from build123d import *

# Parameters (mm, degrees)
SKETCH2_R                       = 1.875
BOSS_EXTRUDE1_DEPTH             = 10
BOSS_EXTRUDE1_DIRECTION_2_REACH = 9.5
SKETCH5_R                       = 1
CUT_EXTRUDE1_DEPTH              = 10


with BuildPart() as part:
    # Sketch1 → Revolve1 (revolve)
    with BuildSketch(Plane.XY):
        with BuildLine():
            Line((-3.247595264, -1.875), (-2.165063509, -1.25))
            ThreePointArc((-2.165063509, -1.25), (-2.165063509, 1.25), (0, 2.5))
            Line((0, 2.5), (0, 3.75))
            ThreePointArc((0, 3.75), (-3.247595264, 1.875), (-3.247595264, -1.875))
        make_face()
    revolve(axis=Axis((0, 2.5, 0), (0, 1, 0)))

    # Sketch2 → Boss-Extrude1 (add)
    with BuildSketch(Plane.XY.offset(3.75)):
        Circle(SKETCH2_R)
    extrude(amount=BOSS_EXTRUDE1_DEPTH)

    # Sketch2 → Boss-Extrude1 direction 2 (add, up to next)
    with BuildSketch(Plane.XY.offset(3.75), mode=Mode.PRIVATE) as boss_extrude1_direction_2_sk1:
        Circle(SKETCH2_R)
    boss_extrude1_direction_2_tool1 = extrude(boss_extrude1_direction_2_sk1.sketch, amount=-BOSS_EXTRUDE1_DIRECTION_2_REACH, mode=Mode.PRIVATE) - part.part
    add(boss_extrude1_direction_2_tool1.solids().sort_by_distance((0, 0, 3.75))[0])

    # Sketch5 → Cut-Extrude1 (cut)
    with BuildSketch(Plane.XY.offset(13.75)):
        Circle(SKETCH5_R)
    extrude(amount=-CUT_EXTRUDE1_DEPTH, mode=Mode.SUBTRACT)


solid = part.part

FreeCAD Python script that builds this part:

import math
import FreeCAD as App
import Part
import Sketcher
from FreeCAD import Vector
Q = App.Units.Quantity

doc = App.newDocument("Part")
params = doc.addObject("Spreadsheet::Sheet", "Params")
for row, (alias, value) in enumerate([
    ("sketch1_radius", "2.5 mm"),
    ("sketch1_radius2", "3.75 mm"),
    ("revolution_angle", "360 deg"),
    ("sketch2_diameter", "3.75 mm"),
    ("pad1_length", "10 mm"),
    ("sketch3_diameter", "3.75 mm"),
    ("pad2_length", "0.502405 mm"),
    ("sketch4_diameter", "2 mm"),
    ("pocket1_length", "10 mm"),
], start=1):
    params.set(f"A{row}", alias)
    params.set(f"B{row}", "=" + value)
    params.setAlias(f"B{row}", alias)

body = doc.addObject("PartDesign::Body", "Body")
body.AllowCompound = True

# Sketch on XY plane
sketch1 = body.newObject("Sketcher::SketchObject", "Sketch")
sketch1.AttachmentSupport = (doc.getObject("XY_Plane"), [""])
sketch1.MapMode = "FlatFace"
sketch1.addGeometry(Part.LineSegment(Vector(-3.2, -1.9, 0), Vector(-2.2, -1.2, 0)), False)
sketch1.addGeometry(Part.ArcOfCircle(Part.Circle(Vector(0, 0, 0), Vector(0, 0, 1), 2.5), math.radians(90), math.radians(210)), False)
sketch1.addGeometry(Part.LineSegment(Vector(0, 2.5, 0), Vector(0, 3.8, 0)), False)
sketch1.addGeometry(Part.ArcOfCircle(Part.Circle(Vector(0, 0, 0), Vector(0, 0, 1), 3.8), math.radians(90), math.radians(210)), False)
sketch1.addConstraint(Sketcher.Constraint("Coincident", 0, 2, 1, 2))
sketch1.addConstraint(Sketcher.Constraint("Coincident", 1, 1, 2, 1))
sketch1.addConstraint(Sketcher.Constraint("Coincident", 2, 2, 3, 1))
sketch1.addConstraint(Sketcher.Constraint("Coincident", 3, 2, 0, 1))
sketch1.addConstraint(Sketcher.Constraint("Vertical", 2))
sketch1.addConstraint(Sketcher.Constraint("Coincident", 1, 3, -1, 1))
sketch1.addConstraint(Sketcher.Constraint("Coincident", 3, 3, -1, 1))
sketch1.addConstraint(Sketcher.Constraint("PointOnObject", 1, 1, -2))
sketch1.addConstraint(Sketcher.Constraint("Radius", 1, 2.5))
sketch1.addConstraint(Sketcher.Constraint("Angle", 0, Q("30 deg")))
sketch1.addConstraint(Sketcher.Constraint("Radius", 3, 3.75))
sketch1.addConstraint(Sketcher.Constraint("DistanceY", 0, 2, 2, 2, 5.0))
sketch1.setExpression("Constraints[8]", "Params.sketch1_radius")
sketch1.setExpression("Constraints[10]", "Params.sketch1_radius2")
revolution = body.newObject("PartDesign::Revolution", "Revolution")
revolution.Profile = sketch1
revolution.ReferenceAxis = (sketch1, ["V_Axis"])
revolution.setExpression("Angle", "Params.revolution_angle")

# Sketch on XY plane
sketch2 = body.newObject("Sketcher::SketchObject", "Sketch001")
sketch2.AttachmentSupport = (doc.getObject("XY_Plane"), [""])
sketch2.MapMode = "FlatFace"
sketch2.AttachmentOffset = App.Placement(Vector(0, 0, 3.75), App.Rotation())
sketch2.addGeometry(Part.Circle(Vector(0, 0, 0), Vector(0, 0, 1), 1.9), False)
sketch2.addConstraint(Sketcher.Constraint("Coincident", 0, 3, -1, 1))
sketch2.addConstraint(Sketcher.Constraint("Diameter", 0, 3.75))
sketch2.setExpression("Constraints[1]", "Params.sketch2_diameter")
pad1 = body.newObject("PartDesign::Pad", "Pad")
pad1.Profile = sketch2
pad1.setExpression("Length", "Params.pad1_length")

# Sketch on XY plane
sketch3 = body.newObject("Sketcher::SketchObject", "Sketch002")
sketch3.AttachmentSupport = (doc.getObject("XY_Plane"), [""])
sketch3.MapMode = "FlatFace"
sketch3.AttachmentOffset = App.Placement(Vector(0, 0, 3.75), App.Rotation())
sketch3.addGeometry(Part.Circle(Vector(0, 0, 0), Vector(0, 0, 1), 1.9), False)
sketch3.addConstraint(Sketcher.Constraint("Coincident", 0, 3, -1, 1))
sketch3.addConstraint(Sketcher.Constraint("Diameter", 0, 3.75))
sketch3.setExpression("Constraints[1]", "Params.sketch3_diameter")
pad2 = body.newObject("PartDesign::Pad", "Pad001")
pad2.Profile = sketch3
pad2.setExpression("Length", "Params.pad2_length")
pad2.Reversed = True

# Sketch on XY plane
sketch4 = body.newObject("Sketcher::SketchObject", "Sketch003")
sketch4.AttachmentSupport = (doc.getObject("XY_Plane"), [""])
sketch4.MapMode = "FlatFace"
sketch4.AttachmentOffset = App.Placement(Vector(0, 0, 13.75), App.Rotation())
sketch4.addGeometry(Part.Circle(Vector(0, 0, 0), Vector(0, 0, 1), 1), False)
sketch4.addConstraint(Sketcher.Constraint("Coincident", 0, 3, -1, 1))
sketch4.addConstraint(Sketcher.Constraint("Diameter", 0, 2.0))
sketch4.setExpression("Constraints[1]", "Params.sketch4_diameter")
pocket1 = body.newObject("PartDesign::Pocket", "Pocket")
pocket1.Profile = sketch4
pocket1.setExpression("Length", "Params.pocket1_length")

doc.recompute()
